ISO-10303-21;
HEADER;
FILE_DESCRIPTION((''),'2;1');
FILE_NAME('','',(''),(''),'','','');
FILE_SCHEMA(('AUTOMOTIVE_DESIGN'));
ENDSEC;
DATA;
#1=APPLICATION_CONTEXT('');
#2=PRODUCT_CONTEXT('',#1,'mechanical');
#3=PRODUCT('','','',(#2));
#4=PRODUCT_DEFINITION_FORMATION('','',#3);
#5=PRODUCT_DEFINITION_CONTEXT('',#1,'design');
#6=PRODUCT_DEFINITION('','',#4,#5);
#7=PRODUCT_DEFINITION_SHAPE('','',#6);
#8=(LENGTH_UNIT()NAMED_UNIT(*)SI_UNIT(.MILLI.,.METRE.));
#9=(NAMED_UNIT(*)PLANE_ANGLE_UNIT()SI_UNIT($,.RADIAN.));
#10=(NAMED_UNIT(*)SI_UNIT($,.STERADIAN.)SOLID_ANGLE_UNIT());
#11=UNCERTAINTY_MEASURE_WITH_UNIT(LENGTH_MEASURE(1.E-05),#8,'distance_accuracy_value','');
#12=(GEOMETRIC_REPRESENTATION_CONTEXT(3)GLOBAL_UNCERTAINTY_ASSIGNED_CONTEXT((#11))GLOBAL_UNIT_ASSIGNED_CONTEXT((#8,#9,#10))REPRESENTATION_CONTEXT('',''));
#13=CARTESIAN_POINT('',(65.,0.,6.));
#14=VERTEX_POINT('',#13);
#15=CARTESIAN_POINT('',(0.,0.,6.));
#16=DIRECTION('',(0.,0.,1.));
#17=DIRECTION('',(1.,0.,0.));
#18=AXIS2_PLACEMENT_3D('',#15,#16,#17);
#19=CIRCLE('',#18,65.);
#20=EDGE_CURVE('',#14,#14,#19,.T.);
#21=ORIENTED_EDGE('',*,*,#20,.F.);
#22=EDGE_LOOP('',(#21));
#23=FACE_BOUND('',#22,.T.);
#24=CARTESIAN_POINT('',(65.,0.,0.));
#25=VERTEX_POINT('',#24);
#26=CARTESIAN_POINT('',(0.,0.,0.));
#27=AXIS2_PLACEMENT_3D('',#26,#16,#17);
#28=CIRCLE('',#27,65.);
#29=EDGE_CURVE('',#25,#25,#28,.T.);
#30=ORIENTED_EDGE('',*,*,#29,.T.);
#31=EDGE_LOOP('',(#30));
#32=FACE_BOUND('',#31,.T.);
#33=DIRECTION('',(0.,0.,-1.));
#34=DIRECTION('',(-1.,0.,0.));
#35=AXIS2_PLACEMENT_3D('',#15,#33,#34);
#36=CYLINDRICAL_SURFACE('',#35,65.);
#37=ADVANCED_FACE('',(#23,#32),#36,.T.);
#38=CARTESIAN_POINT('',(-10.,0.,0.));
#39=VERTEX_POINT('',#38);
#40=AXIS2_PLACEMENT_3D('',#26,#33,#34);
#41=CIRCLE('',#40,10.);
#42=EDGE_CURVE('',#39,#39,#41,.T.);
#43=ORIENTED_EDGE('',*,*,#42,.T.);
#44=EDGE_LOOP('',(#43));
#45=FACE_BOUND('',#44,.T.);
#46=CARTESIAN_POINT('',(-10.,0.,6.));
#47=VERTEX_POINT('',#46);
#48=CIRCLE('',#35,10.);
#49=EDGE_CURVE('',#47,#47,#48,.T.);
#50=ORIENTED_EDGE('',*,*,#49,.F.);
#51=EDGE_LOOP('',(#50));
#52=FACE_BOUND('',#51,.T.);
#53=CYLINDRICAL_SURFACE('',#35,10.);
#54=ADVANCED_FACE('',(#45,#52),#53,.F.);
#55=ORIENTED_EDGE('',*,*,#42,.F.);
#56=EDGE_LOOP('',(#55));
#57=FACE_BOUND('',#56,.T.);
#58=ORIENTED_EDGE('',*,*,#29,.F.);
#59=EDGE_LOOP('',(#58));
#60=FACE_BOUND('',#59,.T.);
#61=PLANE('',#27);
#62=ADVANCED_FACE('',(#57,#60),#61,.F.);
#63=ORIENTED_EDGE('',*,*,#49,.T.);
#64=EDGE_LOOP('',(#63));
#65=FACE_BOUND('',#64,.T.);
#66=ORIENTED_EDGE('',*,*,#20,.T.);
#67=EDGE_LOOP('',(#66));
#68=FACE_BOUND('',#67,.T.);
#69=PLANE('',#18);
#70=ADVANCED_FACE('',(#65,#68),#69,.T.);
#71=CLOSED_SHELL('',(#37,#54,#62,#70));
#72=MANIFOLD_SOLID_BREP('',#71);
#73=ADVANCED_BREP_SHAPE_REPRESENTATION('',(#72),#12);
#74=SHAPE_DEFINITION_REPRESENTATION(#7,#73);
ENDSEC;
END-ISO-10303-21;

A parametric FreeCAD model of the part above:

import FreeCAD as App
import Part
import Sketcher

V = App.Vector

doc = App.newDocument("Part")
body = doc.addObject("PartDesign::Body", "Body")

# Sketch on XY plane
sketch1 = doc.addObject("Sketcher::SketchObject", "Sketch")
body.addObject(sketch1)
sketch1.AttachmentSupport = (doc.XY_Plane, [""])
sketch1.MapMode = "FlatFace"
sketch1.addGeometry(Part.Circle(V(0, 0, 0), V(0, 0, 1), 65), False)
sketch1.addConstraint(Sketcher.Constraint("Coincident", 0, 3, -1, 1))
sketch1.addConstraint(Sketcher.Constraint("Diameter", 0, 130.0))
pad1 = doc.addObject("PartDesign::Pad", "Pad")
body.addObject(pad1)
pad1.Profile = sketch1
pad1.Length = 6

# Sketch on XY plane
sketch2 = doc.addObject("Sketcher::SketchObject", "Sketch001")
body.addObject(sketch2)
sketch2.AttachmentSupport = (doc.XY_Plane, [""])
sketch2.MapMode = "FlatFace"
sketch2.addGeometry(Part.Circle(V(0, 0, 0), V(0, 0, 1), 10), False)
sketch2.addConstraint(Sketcher.Constraint("Coincident", 0, 3, -1, 1))
sketch2.addConstraint(Sketcher.Constraint("Diameter", 0, 20.0))
pocket1 = doc.addObject("PartDesign::Pocket", "Pocket")
body.addObject(pocket1)
pocket1.Profile = sketch2
pocket1.Type = "ThroughAll"
pocket1.Reversed = True

doc.recompute()
